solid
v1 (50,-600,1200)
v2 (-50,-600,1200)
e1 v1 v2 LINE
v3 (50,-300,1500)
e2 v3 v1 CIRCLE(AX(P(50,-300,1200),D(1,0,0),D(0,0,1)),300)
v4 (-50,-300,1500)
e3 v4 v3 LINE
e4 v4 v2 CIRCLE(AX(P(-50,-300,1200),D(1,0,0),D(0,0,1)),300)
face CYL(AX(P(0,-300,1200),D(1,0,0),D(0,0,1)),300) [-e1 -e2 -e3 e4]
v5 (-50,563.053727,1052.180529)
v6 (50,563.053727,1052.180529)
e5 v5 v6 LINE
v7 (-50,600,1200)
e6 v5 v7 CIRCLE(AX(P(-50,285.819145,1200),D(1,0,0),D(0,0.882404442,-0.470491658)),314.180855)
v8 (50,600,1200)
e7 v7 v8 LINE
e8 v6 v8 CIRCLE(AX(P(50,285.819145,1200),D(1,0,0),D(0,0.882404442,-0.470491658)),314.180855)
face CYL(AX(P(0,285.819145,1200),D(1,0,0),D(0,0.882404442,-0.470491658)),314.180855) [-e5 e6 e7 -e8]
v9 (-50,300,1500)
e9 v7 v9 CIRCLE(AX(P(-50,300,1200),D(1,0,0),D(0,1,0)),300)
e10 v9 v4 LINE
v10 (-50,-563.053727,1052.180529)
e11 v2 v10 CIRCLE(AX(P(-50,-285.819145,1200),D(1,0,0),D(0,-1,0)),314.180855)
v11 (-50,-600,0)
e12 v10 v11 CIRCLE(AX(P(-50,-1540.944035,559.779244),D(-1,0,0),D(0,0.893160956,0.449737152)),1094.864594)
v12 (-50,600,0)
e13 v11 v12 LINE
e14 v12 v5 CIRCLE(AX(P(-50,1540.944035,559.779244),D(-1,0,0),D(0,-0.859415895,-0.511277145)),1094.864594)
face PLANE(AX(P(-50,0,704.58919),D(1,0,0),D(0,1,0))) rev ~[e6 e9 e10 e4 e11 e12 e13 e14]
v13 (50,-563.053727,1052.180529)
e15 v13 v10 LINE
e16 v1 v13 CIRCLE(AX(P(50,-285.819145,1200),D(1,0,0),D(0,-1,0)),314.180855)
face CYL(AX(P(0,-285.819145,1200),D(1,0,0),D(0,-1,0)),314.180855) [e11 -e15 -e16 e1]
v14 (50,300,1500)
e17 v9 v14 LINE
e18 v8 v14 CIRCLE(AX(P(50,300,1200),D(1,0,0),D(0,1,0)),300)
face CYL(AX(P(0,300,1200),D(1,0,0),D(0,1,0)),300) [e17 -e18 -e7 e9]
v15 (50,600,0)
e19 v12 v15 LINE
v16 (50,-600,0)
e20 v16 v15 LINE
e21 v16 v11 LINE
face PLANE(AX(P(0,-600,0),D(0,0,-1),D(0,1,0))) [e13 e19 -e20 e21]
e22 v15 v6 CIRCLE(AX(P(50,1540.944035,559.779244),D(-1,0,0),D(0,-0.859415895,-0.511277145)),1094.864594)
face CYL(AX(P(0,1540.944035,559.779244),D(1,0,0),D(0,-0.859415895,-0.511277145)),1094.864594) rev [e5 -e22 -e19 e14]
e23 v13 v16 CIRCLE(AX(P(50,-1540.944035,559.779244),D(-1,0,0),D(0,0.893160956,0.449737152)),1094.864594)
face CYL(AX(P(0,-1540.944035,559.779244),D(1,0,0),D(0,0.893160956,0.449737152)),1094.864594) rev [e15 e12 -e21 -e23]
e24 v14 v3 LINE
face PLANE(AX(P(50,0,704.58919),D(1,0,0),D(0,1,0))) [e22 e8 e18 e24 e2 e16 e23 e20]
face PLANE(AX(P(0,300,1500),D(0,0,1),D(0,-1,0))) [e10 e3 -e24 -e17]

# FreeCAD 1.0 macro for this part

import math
import FreeCAD as App
import Part
import Sketcher

V = App.Vector
Q = App.Units.Quantity

doc = App.newDocument("Part")
body = doc.addObject("PartDesign::Body", "Body")

sketch1 = body.newObject("Sketcher::SketchObject", "Sketch")
sketch1.AttachmentSupport = (doc.getObject("YZ_Plane"), [""])
sketch1.MapMode = "FlatFace"
sketch1.addGeometry([
    Part.LineSegment(V(-600, 0, 0), V(600, 0, 0)),
    Part.ArcOfCircle(Part.Circle(V(1541, 560, 0), V(0, 0, 1), 1095), math.radians(153), math.radians(211)),
    Part.ArcOfCircle(Part.Circle(V(286, 1200, 0), V(0, 0, 1), 314), math.radians(-28), math.radians(0)),
    Part.ArcOfCircle(Part.Circle(V(300, 1200, 0), V(0, 0, 1), 300), math.radians(0), math.radians(90)),
    Part.LineSegment(V(300, 1500, 0), V(-300, 1500, 0)),
    Part.ArcOfCircle(Part.Circle(V(-300, 1200, 0), V(0, 0, 1), 300), math.radians(90), math.radians(180)),
    Part.ArcOfCircle(Part.Circle(V(-286, 1200, 0), V(0, 0, 1), 314), math.radians(180), math.radians(208)),
    Part.ArcOfCircle(Part.Circle(V(-1541, 560, 0), V(0, 0, 1), 1095), math.radians(-31), math.radians(27)),
], False)
sketch1.addConstraint([
    Sketcher.Constraint("Coincident", 0, 2, 1, 2),
    Sketcher.Constraint("Coincident", 1, 1, 2, 1),
    Sketcher.Constraint("Tangent", 2, 2, 3, 1),
    Sketcher.Constraint("Tangent", 3, 2, 4, 1),
    Sketcher.Constraint("Tangent", 4, 2, 5, 1),
    Sketcher.Constraint("Tangent", 5, 2, 6, 1),
    Sketcher.Constraint("Coincident", 6, 2, 7, 2),
    Sketcher.Constraint("Coincident", 7, 1, 0, 1),
    Sketcher.Constraint("Horizontal", 0),
    Sketcher.Constraint("Horizontal", 4),
    Sketcher.Constraint("Equal", 3, 5),
    Sketcher.Constraint("Equal", 2, 6),
    Sketcher.Constraint("Equal", 1, 7),
    Sketcher.Constraint("Symmetric", 2, 3, 6, 3, -2),
    Sketcher.Constraint("Symmetric", 1, 3, 7, 3, -2),
    Sketcher.Constraint("PointOnObject", 0, 2, -1),
    Sketcher.Constraint("Horizontal", 2, 3, 3, 3),
    Sketcher.Constraint("Vertical", 0, 2, 2, 2),
    Sketcher.Constraint("Radius", 3, Q("300 mm")),
    Sketcher.Constraint("DistanceX", 0, 1, 0, 2, Q("1200 mm")),
    Sketcher.Constraint("DistanceY", -1, 1, 2, 3, Q("1200 mm")),
    Sketcher.Constraint("Radius", 1, Q("1094.864594 mm")),
    Sketcher.Constraint("Radius", 2, Q("314.180855 mm")),
    Sketcher.Constraint("DistanceY", -1, 1, 1, 1, Q("1052.180529 mm")),
])
pad1 = body.newObject("PartDesign::Pad", "Pad")
pad1.Profile = sketch1
pad1.Length = 100
pad1.Midplane = True

doc.recompute()
